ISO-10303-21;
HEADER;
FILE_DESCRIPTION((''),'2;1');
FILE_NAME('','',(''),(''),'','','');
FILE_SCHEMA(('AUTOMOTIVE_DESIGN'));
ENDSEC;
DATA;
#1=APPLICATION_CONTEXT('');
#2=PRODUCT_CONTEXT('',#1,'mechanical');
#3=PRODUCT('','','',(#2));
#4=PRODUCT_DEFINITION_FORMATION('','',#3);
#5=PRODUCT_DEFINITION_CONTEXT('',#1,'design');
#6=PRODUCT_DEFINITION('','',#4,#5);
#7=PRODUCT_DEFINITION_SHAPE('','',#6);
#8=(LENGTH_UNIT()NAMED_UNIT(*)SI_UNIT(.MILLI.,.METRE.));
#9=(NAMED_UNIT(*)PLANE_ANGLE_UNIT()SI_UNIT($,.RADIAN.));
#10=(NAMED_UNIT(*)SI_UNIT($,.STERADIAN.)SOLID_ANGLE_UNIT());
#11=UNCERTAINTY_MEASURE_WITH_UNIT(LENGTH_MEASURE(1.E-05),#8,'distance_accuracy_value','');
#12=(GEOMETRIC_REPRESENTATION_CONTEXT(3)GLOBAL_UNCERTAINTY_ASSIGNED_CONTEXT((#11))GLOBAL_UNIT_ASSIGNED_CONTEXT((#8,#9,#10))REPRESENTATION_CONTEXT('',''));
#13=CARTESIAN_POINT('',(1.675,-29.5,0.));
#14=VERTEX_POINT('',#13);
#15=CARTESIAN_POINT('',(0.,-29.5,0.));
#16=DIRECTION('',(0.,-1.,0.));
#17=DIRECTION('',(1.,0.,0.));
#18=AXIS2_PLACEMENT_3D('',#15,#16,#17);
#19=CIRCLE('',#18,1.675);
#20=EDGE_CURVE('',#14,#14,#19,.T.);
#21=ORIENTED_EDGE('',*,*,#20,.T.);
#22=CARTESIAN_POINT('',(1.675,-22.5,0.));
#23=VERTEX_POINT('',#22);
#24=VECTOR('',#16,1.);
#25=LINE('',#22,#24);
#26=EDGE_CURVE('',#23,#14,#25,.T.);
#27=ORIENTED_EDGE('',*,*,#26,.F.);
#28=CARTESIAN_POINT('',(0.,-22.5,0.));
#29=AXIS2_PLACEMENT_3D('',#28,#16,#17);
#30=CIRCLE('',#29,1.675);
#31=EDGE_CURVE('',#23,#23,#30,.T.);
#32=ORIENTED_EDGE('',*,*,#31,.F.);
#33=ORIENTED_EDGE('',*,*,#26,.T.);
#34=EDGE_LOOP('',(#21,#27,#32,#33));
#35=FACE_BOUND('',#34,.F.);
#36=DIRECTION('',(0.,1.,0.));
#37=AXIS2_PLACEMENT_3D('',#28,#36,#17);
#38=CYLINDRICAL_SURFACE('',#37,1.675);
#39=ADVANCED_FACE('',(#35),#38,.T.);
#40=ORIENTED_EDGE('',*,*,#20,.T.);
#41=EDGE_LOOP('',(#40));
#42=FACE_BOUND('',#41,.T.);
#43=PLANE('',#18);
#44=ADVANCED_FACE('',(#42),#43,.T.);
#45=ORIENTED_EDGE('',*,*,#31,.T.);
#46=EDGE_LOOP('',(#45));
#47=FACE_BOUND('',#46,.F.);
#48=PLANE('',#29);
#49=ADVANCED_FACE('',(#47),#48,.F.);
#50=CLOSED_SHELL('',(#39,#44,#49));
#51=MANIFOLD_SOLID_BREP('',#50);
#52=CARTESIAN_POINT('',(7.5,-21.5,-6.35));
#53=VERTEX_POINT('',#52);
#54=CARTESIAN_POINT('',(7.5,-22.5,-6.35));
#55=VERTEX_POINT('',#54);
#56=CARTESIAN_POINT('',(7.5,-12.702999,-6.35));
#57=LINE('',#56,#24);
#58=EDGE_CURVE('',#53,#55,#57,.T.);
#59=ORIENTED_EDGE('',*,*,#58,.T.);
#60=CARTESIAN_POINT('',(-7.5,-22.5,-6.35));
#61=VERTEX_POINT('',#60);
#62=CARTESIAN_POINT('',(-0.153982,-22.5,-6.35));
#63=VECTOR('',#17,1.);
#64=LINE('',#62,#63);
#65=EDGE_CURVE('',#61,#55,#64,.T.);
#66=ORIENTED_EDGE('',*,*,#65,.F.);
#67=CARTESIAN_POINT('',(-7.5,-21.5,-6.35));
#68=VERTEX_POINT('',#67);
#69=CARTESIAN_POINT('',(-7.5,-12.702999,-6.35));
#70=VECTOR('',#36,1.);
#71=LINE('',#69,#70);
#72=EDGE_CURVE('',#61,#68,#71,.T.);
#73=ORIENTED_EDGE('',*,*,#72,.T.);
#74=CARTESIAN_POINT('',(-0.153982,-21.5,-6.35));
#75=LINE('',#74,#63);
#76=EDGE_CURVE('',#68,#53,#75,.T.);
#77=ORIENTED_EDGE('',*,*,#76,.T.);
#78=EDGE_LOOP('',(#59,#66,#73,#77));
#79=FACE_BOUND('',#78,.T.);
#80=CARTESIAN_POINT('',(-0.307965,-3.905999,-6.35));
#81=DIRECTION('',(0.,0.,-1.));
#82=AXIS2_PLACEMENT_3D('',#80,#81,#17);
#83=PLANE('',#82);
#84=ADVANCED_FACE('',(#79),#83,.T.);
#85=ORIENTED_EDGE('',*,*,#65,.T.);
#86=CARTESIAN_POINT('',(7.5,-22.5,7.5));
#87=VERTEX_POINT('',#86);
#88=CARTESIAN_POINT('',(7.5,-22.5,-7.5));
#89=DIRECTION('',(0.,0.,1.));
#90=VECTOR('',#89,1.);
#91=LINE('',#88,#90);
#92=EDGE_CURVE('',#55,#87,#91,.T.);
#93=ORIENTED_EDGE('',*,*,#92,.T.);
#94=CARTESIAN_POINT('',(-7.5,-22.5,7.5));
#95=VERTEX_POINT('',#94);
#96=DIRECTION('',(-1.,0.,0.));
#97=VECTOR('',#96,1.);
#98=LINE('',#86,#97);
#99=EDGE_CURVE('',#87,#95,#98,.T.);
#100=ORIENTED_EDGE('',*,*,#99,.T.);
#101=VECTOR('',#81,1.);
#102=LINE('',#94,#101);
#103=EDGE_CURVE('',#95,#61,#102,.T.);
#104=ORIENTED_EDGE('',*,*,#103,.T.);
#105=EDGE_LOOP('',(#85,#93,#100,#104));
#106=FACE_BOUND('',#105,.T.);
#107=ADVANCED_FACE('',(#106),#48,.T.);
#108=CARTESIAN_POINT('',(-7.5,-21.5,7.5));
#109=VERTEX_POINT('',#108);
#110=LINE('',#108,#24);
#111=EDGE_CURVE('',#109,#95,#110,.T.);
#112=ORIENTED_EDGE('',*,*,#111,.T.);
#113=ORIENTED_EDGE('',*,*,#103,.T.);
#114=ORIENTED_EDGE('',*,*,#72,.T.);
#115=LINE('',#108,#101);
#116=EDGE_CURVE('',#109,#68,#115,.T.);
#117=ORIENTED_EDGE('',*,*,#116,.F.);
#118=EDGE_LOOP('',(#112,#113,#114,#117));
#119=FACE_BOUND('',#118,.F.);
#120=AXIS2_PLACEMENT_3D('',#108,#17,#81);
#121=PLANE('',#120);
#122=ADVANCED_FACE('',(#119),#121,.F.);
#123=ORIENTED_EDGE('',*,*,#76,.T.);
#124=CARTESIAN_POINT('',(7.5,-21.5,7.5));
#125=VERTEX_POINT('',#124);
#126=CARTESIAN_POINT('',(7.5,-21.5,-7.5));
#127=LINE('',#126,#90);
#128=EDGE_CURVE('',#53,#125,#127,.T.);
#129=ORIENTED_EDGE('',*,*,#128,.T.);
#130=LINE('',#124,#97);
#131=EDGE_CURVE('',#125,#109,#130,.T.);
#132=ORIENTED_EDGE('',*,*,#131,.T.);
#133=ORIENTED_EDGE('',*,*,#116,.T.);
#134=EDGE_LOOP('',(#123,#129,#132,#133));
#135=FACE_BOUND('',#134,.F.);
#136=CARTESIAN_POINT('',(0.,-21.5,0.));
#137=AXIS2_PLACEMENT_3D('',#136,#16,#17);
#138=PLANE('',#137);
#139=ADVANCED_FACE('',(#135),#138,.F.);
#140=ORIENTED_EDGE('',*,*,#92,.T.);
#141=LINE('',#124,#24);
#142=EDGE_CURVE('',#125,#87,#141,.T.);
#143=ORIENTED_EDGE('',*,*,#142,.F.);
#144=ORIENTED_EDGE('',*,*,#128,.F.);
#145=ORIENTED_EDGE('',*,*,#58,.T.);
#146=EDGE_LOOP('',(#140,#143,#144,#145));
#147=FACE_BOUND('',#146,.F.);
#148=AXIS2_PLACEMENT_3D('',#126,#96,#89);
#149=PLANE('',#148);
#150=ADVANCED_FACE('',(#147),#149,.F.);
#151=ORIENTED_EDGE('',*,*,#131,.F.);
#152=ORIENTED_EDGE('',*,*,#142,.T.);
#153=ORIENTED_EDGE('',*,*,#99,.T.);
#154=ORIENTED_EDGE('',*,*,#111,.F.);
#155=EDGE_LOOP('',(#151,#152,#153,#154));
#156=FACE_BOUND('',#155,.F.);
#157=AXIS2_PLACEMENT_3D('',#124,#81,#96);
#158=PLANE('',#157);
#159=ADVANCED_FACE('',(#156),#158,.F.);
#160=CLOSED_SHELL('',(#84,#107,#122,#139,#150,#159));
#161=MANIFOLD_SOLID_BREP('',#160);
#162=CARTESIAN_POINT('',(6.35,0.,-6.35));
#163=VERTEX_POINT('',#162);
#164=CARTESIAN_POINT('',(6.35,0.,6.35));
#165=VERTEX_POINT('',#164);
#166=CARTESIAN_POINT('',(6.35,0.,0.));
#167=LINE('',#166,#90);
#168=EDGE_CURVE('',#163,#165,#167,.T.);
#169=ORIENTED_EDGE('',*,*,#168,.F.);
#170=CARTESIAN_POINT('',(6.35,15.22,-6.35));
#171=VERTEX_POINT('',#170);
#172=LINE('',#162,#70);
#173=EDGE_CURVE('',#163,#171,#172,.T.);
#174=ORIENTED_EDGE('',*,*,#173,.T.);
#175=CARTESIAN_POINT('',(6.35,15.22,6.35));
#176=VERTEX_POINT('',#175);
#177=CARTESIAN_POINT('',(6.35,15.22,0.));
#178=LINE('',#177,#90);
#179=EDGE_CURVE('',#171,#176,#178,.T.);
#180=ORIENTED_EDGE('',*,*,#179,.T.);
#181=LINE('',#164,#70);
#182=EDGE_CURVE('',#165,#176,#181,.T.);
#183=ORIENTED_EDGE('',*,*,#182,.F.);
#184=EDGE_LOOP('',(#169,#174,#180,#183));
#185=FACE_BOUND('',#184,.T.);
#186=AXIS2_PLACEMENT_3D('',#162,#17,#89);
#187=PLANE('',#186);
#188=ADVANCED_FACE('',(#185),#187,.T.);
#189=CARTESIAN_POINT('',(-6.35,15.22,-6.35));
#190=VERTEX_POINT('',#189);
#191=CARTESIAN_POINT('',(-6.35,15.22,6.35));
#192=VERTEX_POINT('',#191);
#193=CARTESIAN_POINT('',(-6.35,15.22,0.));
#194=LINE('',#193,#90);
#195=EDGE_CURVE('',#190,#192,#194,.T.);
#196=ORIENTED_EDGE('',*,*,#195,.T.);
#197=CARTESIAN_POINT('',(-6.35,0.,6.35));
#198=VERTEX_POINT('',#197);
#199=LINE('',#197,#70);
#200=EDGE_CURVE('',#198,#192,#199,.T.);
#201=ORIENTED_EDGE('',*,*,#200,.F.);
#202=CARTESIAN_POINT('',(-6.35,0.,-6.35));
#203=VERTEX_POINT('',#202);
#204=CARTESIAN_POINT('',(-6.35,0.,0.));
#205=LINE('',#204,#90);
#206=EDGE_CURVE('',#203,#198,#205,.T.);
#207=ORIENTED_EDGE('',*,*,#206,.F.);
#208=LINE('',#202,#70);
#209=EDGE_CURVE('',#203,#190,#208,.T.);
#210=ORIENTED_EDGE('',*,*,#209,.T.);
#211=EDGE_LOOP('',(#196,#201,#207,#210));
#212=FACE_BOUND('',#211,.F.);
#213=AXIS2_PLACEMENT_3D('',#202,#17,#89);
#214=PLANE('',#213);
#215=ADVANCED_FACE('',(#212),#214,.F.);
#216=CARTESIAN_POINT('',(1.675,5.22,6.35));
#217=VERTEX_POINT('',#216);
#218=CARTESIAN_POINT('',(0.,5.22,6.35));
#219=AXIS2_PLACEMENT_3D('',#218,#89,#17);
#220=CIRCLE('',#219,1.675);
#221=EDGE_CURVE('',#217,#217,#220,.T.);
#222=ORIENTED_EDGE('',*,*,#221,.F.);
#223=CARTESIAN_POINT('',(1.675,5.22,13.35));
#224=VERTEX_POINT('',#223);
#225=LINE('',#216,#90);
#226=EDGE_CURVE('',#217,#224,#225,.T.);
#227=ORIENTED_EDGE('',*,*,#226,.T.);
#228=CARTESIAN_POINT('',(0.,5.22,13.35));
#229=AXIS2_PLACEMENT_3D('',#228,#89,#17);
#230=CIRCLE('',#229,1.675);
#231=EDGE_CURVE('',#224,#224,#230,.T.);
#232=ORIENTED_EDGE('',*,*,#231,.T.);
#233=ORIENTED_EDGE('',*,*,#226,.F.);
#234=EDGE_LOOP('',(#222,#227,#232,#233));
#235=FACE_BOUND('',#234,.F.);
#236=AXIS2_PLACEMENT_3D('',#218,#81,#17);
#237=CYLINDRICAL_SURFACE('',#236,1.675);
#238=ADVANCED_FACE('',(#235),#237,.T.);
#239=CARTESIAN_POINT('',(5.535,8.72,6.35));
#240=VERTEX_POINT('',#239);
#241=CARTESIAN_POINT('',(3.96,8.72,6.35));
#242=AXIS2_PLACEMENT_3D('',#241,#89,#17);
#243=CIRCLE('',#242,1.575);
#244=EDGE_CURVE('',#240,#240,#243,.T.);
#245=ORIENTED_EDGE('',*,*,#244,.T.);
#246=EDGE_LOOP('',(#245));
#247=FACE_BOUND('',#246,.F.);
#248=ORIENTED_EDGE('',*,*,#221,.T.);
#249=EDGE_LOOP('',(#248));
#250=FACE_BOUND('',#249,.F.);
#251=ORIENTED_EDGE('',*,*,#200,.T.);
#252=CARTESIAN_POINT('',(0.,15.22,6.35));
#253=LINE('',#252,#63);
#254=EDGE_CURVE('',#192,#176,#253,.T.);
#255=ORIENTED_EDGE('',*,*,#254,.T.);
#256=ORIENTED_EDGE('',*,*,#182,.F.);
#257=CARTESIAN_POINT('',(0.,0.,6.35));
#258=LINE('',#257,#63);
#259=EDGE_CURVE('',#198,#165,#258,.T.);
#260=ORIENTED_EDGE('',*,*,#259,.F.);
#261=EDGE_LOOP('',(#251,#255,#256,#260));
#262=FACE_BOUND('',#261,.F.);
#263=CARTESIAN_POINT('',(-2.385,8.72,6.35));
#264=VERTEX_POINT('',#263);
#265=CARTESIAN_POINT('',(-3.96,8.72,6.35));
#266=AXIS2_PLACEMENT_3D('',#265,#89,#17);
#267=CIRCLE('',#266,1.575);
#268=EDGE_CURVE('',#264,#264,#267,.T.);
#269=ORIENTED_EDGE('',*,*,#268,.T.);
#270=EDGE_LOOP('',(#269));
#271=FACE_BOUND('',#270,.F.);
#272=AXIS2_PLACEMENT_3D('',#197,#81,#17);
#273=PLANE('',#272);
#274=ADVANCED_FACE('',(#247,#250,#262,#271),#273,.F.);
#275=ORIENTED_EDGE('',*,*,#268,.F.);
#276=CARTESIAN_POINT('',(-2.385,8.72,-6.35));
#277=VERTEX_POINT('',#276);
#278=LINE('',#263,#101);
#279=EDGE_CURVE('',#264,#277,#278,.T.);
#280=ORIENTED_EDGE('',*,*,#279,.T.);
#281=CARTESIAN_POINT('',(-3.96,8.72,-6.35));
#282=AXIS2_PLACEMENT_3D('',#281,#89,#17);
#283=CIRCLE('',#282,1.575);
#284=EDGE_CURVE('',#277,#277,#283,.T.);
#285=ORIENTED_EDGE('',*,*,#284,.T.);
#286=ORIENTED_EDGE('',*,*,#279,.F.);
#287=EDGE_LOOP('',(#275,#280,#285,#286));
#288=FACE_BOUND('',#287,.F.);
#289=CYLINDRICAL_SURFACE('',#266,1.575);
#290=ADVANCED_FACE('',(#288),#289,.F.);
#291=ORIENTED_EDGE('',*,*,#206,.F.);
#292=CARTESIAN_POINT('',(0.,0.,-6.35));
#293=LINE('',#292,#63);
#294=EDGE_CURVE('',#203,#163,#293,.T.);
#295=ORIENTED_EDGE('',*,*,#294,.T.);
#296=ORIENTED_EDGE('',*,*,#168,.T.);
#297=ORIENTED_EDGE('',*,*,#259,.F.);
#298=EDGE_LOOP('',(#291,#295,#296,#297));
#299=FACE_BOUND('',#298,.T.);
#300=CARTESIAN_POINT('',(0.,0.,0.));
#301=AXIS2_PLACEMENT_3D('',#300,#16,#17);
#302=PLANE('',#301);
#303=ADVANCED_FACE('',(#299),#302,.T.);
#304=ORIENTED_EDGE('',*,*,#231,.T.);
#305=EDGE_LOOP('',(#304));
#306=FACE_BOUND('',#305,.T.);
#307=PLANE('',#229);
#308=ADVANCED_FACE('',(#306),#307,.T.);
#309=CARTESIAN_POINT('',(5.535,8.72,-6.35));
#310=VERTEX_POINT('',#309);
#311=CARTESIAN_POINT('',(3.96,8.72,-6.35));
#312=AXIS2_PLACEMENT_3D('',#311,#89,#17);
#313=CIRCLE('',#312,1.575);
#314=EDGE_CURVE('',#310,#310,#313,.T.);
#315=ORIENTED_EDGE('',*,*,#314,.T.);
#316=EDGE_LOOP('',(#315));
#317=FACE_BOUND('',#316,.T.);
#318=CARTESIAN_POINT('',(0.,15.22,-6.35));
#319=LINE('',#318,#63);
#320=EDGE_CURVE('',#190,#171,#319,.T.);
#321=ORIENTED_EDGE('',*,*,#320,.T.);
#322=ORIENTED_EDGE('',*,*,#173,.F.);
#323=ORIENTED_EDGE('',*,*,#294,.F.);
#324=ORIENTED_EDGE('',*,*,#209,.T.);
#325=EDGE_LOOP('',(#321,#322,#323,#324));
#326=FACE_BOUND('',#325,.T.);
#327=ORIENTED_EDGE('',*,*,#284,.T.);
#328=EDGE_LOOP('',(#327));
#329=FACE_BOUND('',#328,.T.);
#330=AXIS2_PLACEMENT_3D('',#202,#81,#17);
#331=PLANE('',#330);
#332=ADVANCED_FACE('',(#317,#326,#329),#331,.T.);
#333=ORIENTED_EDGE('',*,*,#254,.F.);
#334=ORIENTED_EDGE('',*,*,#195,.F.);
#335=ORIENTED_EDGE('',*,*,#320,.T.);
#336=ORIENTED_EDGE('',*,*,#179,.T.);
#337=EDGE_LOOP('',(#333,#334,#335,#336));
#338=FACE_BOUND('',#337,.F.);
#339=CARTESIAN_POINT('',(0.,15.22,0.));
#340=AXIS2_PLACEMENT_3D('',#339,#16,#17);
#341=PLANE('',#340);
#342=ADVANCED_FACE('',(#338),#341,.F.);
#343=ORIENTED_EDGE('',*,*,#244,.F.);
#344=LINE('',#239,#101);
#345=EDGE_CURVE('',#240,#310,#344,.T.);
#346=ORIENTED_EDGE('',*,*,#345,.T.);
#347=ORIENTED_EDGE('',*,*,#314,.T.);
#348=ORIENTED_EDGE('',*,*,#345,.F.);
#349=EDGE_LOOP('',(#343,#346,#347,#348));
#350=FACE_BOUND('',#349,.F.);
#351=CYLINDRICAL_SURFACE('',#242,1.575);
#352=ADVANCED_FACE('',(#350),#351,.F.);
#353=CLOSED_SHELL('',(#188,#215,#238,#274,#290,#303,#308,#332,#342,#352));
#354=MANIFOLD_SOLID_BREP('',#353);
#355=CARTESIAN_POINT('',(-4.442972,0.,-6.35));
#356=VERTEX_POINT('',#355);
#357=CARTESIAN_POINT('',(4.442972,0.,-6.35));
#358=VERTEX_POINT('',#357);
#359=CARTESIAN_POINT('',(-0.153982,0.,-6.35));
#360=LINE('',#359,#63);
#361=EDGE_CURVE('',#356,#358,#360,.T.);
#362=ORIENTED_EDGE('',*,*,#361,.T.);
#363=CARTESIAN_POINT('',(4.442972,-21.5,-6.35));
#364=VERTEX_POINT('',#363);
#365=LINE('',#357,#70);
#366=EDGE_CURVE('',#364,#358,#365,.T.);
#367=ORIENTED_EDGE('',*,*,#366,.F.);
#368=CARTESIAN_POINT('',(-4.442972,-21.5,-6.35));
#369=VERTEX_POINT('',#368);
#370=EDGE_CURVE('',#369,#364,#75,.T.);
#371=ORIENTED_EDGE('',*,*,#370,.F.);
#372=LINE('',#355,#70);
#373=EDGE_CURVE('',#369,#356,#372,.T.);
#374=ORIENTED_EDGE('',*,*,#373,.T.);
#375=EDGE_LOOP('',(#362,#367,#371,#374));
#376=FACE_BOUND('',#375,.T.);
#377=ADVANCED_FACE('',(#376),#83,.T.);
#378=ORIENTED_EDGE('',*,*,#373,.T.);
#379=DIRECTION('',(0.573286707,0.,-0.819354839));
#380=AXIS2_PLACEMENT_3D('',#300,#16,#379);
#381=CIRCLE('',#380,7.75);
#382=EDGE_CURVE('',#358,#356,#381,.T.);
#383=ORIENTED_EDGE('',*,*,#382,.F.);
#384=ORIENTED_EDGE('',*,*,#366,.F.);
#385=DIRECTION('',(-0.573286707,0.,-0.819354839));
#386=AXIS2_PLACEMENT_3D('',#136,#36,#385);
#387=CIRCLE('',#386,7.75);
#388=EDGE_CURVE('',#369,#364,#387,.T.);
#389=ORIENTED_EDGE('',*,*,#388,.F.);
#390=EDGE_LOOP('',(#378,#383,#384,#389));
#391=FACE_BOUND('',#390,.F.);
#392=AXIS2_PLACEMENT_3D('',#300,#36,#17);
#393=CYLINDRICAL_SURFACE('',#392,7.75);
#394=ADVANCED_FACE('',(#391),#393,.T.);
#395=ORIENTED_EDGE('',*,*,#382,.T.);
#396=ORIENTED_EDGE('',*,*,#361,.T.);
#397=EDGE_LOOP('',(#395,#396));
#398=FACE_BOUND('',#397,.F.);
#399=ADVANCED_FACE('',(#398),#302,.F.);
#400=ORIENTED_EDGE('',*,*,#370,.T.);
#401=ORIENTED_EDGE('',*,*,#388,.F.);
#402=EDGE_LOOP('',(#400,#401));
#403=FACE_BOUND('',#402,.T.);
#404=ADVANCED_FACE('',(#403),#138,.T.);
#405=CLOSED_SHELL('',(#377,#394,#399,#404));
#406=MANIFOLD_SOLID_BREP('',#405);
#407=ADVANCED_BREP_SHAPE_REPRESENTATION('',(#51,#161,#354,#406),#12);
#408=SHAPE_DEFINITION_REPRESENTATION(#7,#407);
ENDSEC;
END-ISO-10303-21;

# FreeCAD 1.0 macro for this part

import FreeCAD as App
import Part
import Sketcher

V = App.Vector
Q = App.Units.Quantity


def add_polygon(sketch, points):
    """Adds a closed chain of lines whose ends are joined by coincident constraints."""
    first, n = sketch.GeometryCount, len(points)
    for a, b in zip(points, points[1:] + points[:1]):
        sketch.addGeometry(Part.LineSegment(App.Vector(*a, 0), App.Vector(*b, 0)), False)
    for i in range(n):
        sketch.addConstraint(Sketcher.Constraint("Coincident", first + i, 2, first + (i + 1) % n, 1))

doc = App.newDocument("Part")
body = doc.addObject("PartDesign::Body", "Body")

# Sketch on XZ plane
sketch1 = body.newObject("Sketcher::SketchObject", "Sketch")
sketch1.AttachmentSupport = (doc.getObject("XZ_Plane"), [""])
sketch1.MapMode = "FlatFace"
add_polygon(sketch1, [(-6.35, 6.35), (-6.35, -6.35), (6.35, -6.35), (6.35, 6.35)])  # lines 0-3
sketch1.addConstraint(Sketcher.Constraint("Vertical", 0))
sketch1.addConstraint(Sketcher.Constraint("Horizontal", 1))
sketch1.addConstraint(Sketcher.Constraint("Vertical", 2))
sketch1.addConstraint(Sketcher.Constraint("Horizontal", 3))
sketch1.addConstraint(Sketcher.Constraint("Symmetric", 0, 2, 2, 2, -1, 1))
sketch1.addConstraint(Sketcher.Constraint("Equal", 3, 0))
sketch1.addConstraint(Sketcher.Constraint("DistanceX", 1, 1, 1, 2, Q("12.7 mm")))
pad1 = body.newObject("PartDesign::Pad", "Pad")
pad1.Profile = sketch1
pad1.Length = 15.22
pad1.Reversed = True

# Sketch on XY plane
sketch2 = body.newObject("Sketcher::SketchObject", "Sketch001")
sketch2.AttachmentSupport = (doc.getObject("XY_Plane"), [""])
sketch2.MapMode = "FlatFace"
sketch2.AttachmentOffset = App.Placement(V(0, 0, 6.35), App.Rotation())
sketch2.addGeometry(Part.Circle(V(-3.96, 8.72, 0), V(0, 0, 1), 1.575), False)
sketch2.addGeometry(Part.Circle(V(3.96, 8.72, 0), V(0, 0, 1), 1.575), False)
sketch2.addConstraint(Sketcher.Constraint("Equal", 0, 1))
sketch2.addConstraint(Sketcher.Constraint("Symmetric", 0, 3, 1, 3, -2))
sketch2.addConstraint(Sketcher.Constraint("Diameter", 0, Q("3.15 mm")))
sketch2.addConstraint(Sketcher.Constraint("DistanceX", 0, 3, -1, 1, Q("3.96 mm")))
sketch2.addConstraint(Sketcher.Constraint("DistanceY", -1, 1, 0, 3, Q("8.72 mm")))
pocket1 = body.newObject("PartDesign::Pocket", "Pocket")
pocket1.Profile = sketch2
pocket1.Type = "ThroughAll"

# Sketch on XY plane
sketch3 = body.newObject("Sketcher::SketchObject", "Sketch002")
sketch3.AttachmentSupport = (doc.getObject("XY_Plane"), [""])
sketch3.MapMode = "FlatFace"
sketch3.AttachmentOffset = App.Placement(V(0, 0, 6.35), App.Rotation())
sketch3.addGeometry(Part.Circle(V(0, 5.22, 0), V(0, 0, 1), 1.675), False)
sketch3.addConstraint(Sketcher.Constraint("PointOnObject", 0, 3, -2))
sketch3.addConstraint(Sketcher.Constraint("Diameter", 0, Q("3.35 mm")))
sketch3.addConstraint(Sketcher.Constraint("DistanceY", -1, 1, 0, 3, Q("5.22 mm")))
pad2 = body.newObject("PartDesign::Pad", "Pad001")
pad2.Profile = sketch3
pad2.Length = 7
body2 = doc.addObject("PartDesign::Body", "Body001")

# Sketch on XZ plane
sketch4 = body2.newObject("Sketcher::SketchObject", "Sketch003")
sketch4.AttachmentSupport = (doc.getObject("XZ_Plane001"), [""])
sketch4.MapMode = "FlatFace"
sketch4.addGeometry(Part.Circle(V(0, 0, 0), V(0, 0, 1), 7.75), False)
sketch4.addConstraint(Sketcher.Constraint("Coincident", 0, 3, -1, 1))
sketch4.addConstraint(Sketcher.Constraint("Diameter", 0, Q("15.5 mm")))
pad3 = body2.newObject("PartDesign::Pad", "Pad002")
pad3.Profile = sketch4
pad3.Length = 21.5
body3 = doc.addObject("PartDesign::Body", "Body002")

# Sketch on XZ plane
sketch5 = body3.newObject("Sketcher::SketchObject", "Sketch004")
sketch5.AttachmentSupport = (doc.getObject("XZ_Plane002"), [""])
sketch5.MapMode = "FlatFace"
sketch5.AttachmentOffset = App.Placement(V(0, 0, 21.5), App.Rotation())
add_polygon(sketch5, [(7.5, -7.5), (7.5, 7.5), (-7.5, 7.5), (-7.5, -7.5)])  # lines 0-3
sketch5.addConstraint(Sketcher.Constraint("Vertical", 0))
sketch5.addConstraint(Sketcher.Constraint("Horizontal", 1))
sketch5.addConstraint(Sketcher.Constraint("Vertical", 2))
sketch5.addConstraint(Sketcher.Constraint("Horizontal", 3))
sketch5.addConstraint(Sketcher.Constraint("Symmetric", 0, 2, 2, 2, -1, 1))
sketch5.addConstraint(Sketcher.Constraint("Equal", 3, 0))
sketch5.addConstraint(Sketcher.Constraint("DistanceX", 1, 2, 1, 1, Q("15 mm")))
pad4 = body3.newObject("PartDesign::Pad", "Pad003")
pad4.Profile = sketch5
pad4.Length = 1
body4 = doc.addObject("PartDesign::Body", "Body003")

# Sketch on XZ plane
sketch6 = body4.newObject("Sketcher::SketchObject", "Sketch005")
sketch6.AttachmentSupport = (doc.getObject("XZ_Plane003"), [""])
sketch6.MapMode = "FlatFace"
sketch6.AttachmentOffset = App.Placement(V(0, 0, 22.5), App.Rotation())
sketch6.addGeometry(Part.Circle(V(0, 0, 0), V(0, 0, 1), 1.675), False)
sketch6.addConstraint(Sketcher.Constraint("Coincident", 0, 3, -1, 1))
sketch6.addConstraint(Sketcher.Constraint("Diameter", 0, Q("3.35 mm")))
pad5 = body4.newObject("PartDesign::Pad", "Pad004")
pad5.Profile = sketch6
pad5.Length = 7
body5 = doc.addObject("PartDesign::Body", "Body004")

# Sketch on XY plane
sketch7 = body5.newObject("Sketcher::SketchObject", "Sketch006")
sketch7.AttachmentSupport = (doc.getObject("XY_Plane004"), [""])
sketch7.MapMode = "FlatFace"
sketch7.AttachmentOffset = App.Placement(V(0, 0, -6.35), App.Rotation())
add_polygon(sketch7, [(-9.459006, -27.074767), (-9.459006, 19.26277), (8.843076, 19.26277), (8.843076, -27.074767)])  # lines 0-3
sketch7.addConstraint(Sketcher.Constraint("Vertical", 0))
sketch7.addConstraint(Sketcher.Constraint("Horizontal", 1))
sketch7.addConstraint(Sketcher.Constraint("Vertical", 2))
sketch7.addConstraint(Sketcher.Constraint("Horizontal", 3))
sketch7.addConstraint(Sketcher.Constraint("DistanceX", 1, 1, 1, 2, Q("18.302082 mm")))
sketch7.addConstraint(Sketcher.Constraint("DistanceY", 0, 1, 0, 2, Q("46.337537 mm")))
sketch7.addConstraint(Sketcher.Constraint("DistanceY", -1, 1, 0, 2, Q("19.26277 mm")))
sketch7.addConstraint(Sketcher.Constraint("DistanceX", 0, 2, -1, 1, Q("9.459006 mm")))
pad6 = body5.newObject("PartDesign::Pad", "Pad005")
pad6.Profile = sketch7
pad6.Length = 25
pad6.Reversed = True
doc.recompute()

body6 = doc.addObject("PartDesign::Body", "Body005")
body6.BaseFeature = body5
boolean = body2.newObject("PartDesign::Boolean", "Boolean")
boolean.Type = "Cut"
boolean.addObjects([body6])
doc.recompute()

boolean2 = body3.newObject("PartDesign::Boolean", "Boolean001")
boolean2.Type = "Cut"
boolean2.addObjects([body5])

doc.recompute()
